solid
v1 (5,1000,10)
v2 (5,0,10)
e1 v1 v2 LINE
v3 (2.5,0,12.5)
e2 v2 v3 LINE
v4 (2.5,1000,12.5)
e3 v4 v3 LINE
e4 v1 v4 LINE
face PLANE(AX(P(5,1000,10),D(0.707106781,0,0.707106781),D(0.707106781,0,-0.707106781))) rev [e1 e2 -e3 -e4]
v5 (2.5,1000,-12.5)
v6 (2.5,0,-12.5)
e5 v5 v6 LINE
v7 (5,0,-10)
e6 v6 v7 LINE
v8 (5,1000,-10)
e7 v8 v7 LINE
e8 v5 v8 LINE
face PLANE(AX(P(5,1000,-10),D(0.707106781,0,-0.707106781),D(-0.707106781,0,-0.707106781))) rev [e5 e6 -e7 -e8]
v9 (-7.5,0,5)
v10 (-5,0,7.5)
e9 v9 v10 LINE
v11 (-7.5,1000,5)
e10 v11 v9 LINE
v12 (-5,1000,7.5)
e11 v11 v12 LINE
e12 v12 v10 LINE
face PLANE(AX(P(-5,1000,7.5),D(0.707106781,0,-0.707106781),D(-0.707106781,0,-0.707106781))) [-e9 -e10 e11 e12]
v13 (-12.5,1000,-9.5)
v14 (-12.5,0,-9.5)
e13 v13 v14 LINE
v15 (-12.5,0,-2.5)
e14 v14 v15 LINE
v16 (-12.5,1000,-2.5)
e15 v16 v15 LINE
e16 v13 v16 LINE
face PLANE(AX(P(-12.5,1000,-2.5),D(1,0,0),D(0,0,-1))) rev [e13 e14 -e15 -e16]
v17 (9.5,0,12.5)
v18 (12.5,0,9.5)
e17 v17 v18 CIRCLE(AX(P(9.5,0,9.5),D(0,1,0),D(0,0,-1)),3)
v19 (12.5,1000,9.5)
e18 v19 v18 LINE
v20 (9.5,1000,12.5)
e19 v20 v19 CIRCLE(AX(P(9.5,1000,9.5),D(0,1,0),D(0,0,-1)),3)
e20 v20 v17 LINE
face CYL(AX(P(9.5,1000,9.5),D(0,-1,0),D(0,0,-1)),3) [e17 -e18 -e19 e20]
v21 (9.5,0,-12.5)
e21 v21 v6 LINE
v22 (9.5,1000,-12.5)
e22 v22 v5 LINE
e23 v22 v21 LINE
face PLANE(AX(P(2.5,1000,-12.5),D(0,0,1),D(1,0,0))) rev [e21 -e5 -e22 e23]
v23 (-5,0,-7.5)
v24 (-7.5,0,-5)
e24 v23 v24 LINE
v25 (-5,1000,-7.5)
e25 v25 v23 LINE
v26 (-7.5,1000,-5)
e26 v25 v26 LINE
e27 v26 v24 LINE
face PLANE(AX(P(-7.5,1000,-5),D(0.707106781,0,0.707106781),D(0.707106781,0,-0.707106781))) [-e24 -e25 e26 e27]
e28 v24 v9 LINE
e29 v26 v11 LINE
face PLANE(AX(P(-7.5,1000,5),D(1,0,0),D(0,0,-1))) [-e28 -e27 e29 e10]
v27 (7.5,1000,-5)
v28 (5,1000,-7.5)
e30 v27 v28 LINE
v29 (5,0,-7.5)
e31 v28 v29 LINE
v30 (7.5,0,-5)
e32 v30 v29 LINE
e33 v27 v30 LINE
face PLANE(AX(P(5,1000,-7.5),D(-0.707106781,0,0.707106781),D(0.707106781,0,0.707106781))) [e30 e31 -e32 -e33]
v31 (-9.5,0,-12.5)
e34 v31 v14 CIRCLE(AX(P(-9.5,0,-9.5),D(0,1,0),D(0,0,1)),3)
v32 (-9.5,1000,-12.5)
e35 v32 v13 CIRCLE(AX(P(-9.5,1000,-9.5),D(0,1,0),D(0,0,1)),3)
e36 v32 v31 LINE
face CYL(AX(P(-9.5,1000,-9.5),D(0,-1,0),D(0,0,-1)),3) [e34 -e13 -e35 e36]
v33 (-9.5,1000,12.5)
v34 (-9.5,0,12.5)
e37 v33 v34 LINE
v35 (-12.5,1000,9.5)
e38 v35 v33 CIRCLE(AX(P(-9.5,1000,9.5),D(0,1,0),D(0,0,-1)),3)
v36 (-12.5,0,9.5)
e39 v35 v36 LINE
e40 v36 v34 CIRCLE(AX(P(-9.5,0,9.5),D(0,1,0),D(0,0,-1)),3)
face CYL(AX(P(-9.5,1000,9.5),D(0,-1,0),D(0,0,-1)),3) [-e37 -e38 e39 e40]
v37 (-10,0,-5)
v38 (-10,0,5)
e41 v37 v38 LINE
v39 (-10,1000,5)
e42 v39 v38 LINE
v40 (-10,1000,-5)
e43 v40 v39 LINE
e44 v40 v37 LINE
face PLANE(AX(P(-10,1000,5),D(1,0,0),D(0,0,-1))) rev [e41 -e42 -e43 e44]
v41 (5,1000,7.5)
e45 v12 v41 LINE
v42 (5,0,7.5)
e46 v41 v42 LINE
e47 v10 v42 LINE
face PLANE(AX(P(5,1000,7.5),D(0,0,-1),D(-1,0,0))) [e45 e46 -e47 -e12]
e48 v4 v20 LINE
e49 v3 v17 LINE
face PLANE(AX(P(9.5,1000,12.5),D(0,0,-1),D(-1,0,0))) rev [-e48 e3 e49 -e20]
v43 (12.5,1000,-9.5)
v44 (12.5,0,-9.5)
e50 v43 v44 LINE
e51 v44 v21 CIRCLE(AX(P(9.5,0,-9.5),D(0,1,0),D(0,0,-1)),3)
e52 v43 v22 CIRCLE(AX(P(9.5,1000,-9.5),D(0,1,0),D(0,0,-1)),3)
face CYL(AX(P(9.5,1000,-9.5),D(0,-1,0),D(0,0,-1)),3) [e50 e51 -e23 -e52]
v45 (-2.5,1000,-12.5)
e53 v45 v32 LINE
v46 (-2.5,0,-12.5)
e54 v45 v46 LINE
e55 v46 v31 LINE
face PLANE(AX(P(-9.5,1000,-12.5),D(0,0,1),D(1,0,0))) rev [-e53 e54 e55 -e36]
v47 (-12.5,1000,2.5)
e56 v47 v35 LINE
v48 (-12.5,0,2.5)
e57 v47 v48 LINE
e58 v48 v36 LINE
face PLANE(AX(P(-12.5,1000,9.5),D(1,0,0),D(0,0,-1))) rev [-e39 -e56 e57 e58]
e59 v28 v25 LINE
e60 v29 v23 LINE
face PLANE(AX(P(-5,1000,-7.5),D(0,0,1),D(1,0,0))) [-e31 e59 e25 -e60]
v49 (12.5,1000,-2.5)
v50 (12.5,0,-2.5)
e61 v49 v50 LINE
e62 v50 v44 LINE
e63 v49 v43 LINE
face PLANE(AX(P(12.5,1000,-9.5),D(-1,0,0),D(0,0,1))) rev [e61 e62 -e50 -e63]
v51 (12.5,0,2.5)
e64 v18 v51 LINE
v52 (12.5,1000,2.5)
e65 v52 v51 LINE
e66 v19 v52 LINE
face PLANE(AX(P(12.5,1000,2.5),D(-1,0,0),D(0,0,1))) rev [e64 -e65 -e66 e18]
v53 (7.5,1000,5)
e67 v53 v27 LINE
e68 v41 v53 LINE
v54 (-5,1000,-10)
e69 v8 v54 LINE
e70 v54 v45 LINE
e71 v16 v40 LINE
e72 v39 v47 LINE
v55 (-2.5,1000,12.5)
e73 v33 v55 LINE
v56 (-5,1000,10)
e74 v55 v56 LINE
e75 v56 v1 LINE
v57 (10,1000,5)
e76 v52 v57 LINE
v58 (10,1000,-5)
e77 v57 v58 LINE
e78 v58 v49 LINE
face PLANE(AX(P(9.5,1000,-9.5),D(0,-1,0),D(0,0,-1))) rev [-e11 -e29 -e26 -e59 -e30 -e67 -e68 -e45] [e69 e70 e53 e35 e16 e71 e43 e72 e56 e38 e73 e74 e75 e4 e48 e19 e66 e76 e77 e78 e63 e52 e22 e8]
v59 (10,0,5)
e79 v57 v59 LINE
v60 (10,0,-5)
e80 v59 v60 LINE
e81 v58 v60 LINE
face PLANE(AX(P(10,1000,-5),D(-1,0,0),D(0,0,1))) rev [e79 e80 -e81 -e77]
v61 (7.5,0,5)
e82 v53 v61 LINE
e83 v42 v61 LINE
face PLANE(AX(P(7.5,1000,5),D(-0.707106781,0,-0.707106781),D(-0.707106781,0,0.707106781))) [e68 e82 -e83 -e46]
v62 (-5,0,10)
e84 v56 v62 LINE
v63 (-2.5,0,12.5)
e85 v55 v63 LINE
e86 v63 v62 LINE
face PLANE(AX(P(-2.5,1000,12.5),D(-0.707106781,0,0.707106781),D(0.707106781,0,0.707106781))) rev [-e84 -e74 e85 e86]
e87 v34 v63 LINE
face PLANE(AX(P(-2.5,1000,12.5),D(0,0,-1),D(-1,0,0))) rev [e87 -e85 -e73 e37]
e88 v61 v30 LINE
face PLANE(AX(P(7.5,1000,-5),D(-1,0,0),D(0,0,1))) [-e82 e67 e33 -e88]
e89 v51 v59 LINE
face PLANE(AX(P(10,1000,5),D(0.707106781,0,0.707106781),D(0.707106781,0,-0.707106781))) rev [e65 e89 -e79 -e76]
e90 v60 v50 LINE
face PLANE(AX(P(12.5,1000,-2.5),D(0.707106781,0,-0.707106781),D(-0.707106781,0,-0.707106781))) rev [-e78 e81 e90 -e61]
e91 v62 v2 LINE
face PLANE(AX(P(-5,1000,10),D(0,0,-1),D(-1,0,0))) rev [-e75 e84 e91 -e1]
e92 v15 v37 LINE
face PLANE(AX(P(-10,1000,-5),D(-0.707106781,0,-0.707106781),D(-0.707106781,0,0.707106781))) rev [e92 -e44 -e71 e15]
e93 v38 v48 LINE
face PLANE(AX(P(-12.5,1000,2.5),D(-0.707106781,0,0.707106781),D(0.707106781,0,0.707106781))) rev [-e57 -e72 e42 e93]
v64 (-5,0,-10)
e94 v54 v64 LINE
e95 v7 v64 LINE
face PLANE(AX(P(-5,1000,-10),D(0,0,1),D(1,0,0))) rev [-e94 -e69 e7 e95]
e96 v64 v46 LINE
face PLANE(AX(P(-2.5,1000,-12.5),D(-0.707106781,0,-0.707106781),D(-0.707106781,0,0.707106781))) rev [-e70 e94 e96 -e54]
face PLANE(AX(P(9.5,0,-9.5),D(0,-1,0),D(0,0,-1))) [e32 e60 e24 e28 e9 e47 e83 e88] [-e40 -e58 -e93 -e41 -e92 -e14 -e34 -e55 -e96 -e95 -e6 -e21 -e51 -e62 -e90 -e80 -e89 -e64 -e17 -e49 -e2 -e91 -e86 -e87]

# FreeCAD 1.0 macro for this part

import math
import FreeCAD as App
import Part
import Sketcher

V = App.Vector
Q = App.Units.Quantity


def add_polygon(sketch, points):
    """Adds a closed chain of lines whose ends are joined by coincident constraints."""
    first, n = sketch.GeometryCount, len(points)
    for a, b in zip(points, points[1:] + points[:1]):
        sketch.addGeometry(Part.LineSegment(App.Vector(*a, 0), App.Vector(*b, 0)), False)
    for i in range(n):
        sketch.addConstraint(Sketcher.Constraint("Coincident", first + i, 2, first + (i + 1) % n, 1))

doc = App.newDocument("Part")
body = doc.addObject("PartDesign::Body", "Body")

# Sketch on XZ plane
sketch1 = body.newObject("Sketcher::SketchObject", "Sketch")
sketch1.AttachmentSupport = (doc.getObject("XZ_Plane"), [""])
sketch1.MapMode = "FlatFace"
sketch1.addGeometry(Part.LineSegment(V(-2.5, -12.5, 0), V(-9.5, -12.5, 0)), False)  # 0
sketch1.addGeometry(Part.ArcOfCircle(Part.Circle(V(-9.5, -9.5, 0), V(0, 0, 1), 3), math.radians(180), math.radians(270)), False)  # 1
sketch1.addGeometry(Part.LineSegment(V(-12.5, -9.5, 0), V(-12.5, -2.5, 0)), False)  # 2
sketch1.addGeometry(Part.LineSegment(V(-12.5, -2.5, 0), V(-10, -5, 0)), False)  # 3
sketch1.addGeometry(Part.LineSegment(V(-10, -5, 0), V(-10, 5, 0)), False)  # 4
sketch1.addGeometry(Part.LineSegment(V(-10, 5, 0), V(-12.5, 2.5, 0)), False)  # 5
sketch1.addGeometry(Part.LineSegment(V(-12.5, 2.5, 0), V(-12.5, 9.5, 0)), False)  # 6
sketch1.addGeometry(Part.ArcOfCircle(Part.Circle(V(-9.5, 9.5, 0), V(0, 0, 1), 3), math.radians(90), math.radians(180)), False)  # 7
sketch1.addGeometry(Part.LineSegment(V(-9.5, 12.5, 0), V(-2.5, 12.5, 0)), False)  # 8
sketch1.addGeometry(Part.LineSegment(V(-2.5, 12.5, 0), V(-5, 10, 0)), False)  # 9
sketch1.addGeometry(Part.LineSegment(V(-5, 10, 0), V(5, 10, 0)), False)  # 10
sketch1.addGeometry(Part.LineSegment(V(5, 10, 0), V(2.5, 12.5, 0)), False)  # 11
sketch1.addGeometry(Part.LineSegment(V(2.5, 12.5, 0), V(9.5, 12.5, 0)), False)  # 12
sketch1.addGeometry(Part.ArcOfCircle(Part.Circle(V(9.5, 9.5, 0), V(0, 0, 1), 3), math.radians(0), math.radians(90)), False)  # 13
sketch1.addGeometry(Part.LineSegment(V(12.5, 9.5, 0), V(12.5, 2.5, 0)), False)  # 14
sketch1.addGeometry(Part.LineSegment(V(12.5, 2.5, 0), V(10, 5, 0)), False)  # 15
sketch1.addGeometry(Part.LineSegment(V(10, 5, 0), V(10, -5, 0)), False)  # 16
sketch1.addGeometry(Part.LineSegment(V(10, -5, 0), V(12.5, -2.5, 0)), False)  # 17
sketch1.addGeometry(Part.LineSegment(V(12.5, -2.5, 0), V(12.5, -9.5, 0)), False)  # 18
sketch1.addGeometry(Part.ArcOfCircle(Part.Circle(V(9.5, -9.5, 0), V(0, 0, 1), 3), math.radians(-90), math.radians(0)), False)  # 19
sketch1.addGeometry(Part.LineSegment(V(9.5, -12.5, 0), V(2.5, -12.5, 0)), False)  # 20
sketch1.addGeometry(Part.LineSegment(V(2.5, -12.5, 0), V(5, -10, 0)), False)  # 21
sketch1.addGeometry(Part.LineSegment(V(5, -10, 0), V(-5, -10, 0)), False)  # 22
sketch1.addGeometry(Part.LineSegment(V(-5, -10, 0), V(-2.5, -12.5, 0)), False)  # 23
add_polygon(sketch1, [(-7.5, -5), (-5, -7.5), (5, -7.5), (7.5, -5), (7.5, 5), (5, 7.5), (-5, 7.5), (-7.5, 5)])  # lines 24-31
sketch1.addConstraint(Sketcher.Constraint("Tangent", 0, 2, 1, 2))
sketch1.addConstraint(Sketcher.Constraint("Tangent", 1, 1, 2, 1))
sketch1.addConstraint(Sketcher.Constraint("Coincident", 2, 2, 3, 1))
sketch1.addConstraint(Sketcher.Constraint("Coincident", 3, 2, 4, 1))
sketch1.addConstraint(Sketcher.Constraint("Coincident", 4, 2, 5, 1))
sketch1.addConstraint(Sketcher.Constraint("Coincident", 5, 2, 6, 1))
sketch1.addConstraint(Sketcher.Constraint("Tangent", 6, 2, 7, 2))
sketch1.addConstraint(Sketcher.Constraint("Tangent", 7, 1, 8, 1))
sketch1.addConstraint(Sketcher.Constraint("Coincident", 8, 2, 9, 1))
sketch1.addConstraint(Sketcher.Constraint("Coincident", 9, 2, 10, 1))
sketch1.addConstraint(Sketcher.Constraint("Coincident", 10, 2, 11, 1))
sketch1.addConstraint(Sketcher.Constraint("Coincident", 11, 2, 12, 1))
sketch1.addConstraint(Sketcher.Constraint("Tangent", 12, 2, 13, 2))
sketch1.addConstraint(Sketcher.Constraint("Tangent", 13, 1, 14, 1))
sketch1.addConstraint(Sketcher.Constraint("Coincident", 14, 2, 15, 1))
sketch1.addConstraint(Sketcher.Constraint("Coincident", 15, 2, 16, 1))
sketch1.addConstraint(Sketcher.Constraint("Coincident", 16, 2, 17, 1))
sketch1.addConstraint(Sketcher.Constraint("Coincident", 17, 2, 18, 1))
sketch1.addConstraint(Sketcher.Constraint("Tangent", 18, 2, 19, 2))
sketch1.addConstraint(Sketcher.Constraint("Tangent", 19, 1, 20, 1))
sketch1.addConstraint(Sketcher.Constraint("Coincident", 20, 2, 21, 1))
sketch1.addConstraint(Sketcher.Constraint("Coincident", 21, 2, 22, 1))
sketch1.addConstraint(Sketcher.Constraint("Coincident", 22, 2, 23, 1))
sketch1.addConstraint(Sketcher.Constraint("Coincident", 23, 2, 0, 1))
sketch1.addConstraint(Sketcher.Constraint("Horizontal", 0))
sketch1.addConstraint(Sketcher.Constraint("Vertical", 2))
sketch1.addConstraint(Sketcher.Constraint("Vertical", 4))
sketch1.addConstraint(Sketcher.Constraint("Vertical", 6))
sketch1.addConstraint(Sketcher.Constraint("Horizontal", 8))
sketch1.addConstraint(Sketcher.Constraint("Horizontal", 10))
sketch1.addConstraint(Sketcher.Constraint("Horizontal", 12))
sketch1.addConstraint(Sketcher.Constraint("Vertical", 14))
sketch1.addConstraint(Sketcher.Constraint("Vertical", 16))
sketch1.addConstraint(Sketcher.Constraint("Vertical", 18))
sketch1.addConstraint(Sketcher.Constraint("Horizontal", 20))
sketch1.addConstraint(Sketcher.Constraint("Horizontal", 22))
sketch1.addConstraint(Sketcher.Constraint("Horizontal", 25))
sketch1.addConstraint(Sketcher.Constraint("Vertical", 27))
sketch1.addConstraint(Sketcher.Constraint("Horizontal", 29))
sketch1.addConstraint(Sketcher.Constraint("Vertical", 31))
sketch1.addConstraint(Sketcher.Constraint("Equal", 1, 7))
sketch1.addConstraint(Sketcher.Constraint("Equal", 7, 13))
sketch1.addConstraint(Sketcher.Constraint("Equal", 13, 19))
sketch1.addConstraint(Sketcher.Constraint("Symmetric", 1, 3, 13, 3, -1, 1))
sketch1.addConstraint(Sketcher.Constraint("Symmetric", 7, 3, 19, 3, -1, 1))
sketch1.addConstraint(Sketcher.Constraint("Symmetric", 3, 2, 15, 2, -1, 1))
sketch1.addConstraint(Sketcher.Constraint("Symmetric", 9, 2, 21, 2, -1, 1))
sketch1.addConstraint(Sketcher.Constraint("Symmetric", 24, 2, 28, 2, -1, 1))
sketch1.addConstraint(Sketcher.Constraint("Symmetric", 26, 2, 30, 2, -1, 1))
sketch1.addConstraint(Sketcher.Constraint("Symmetric", 7, 3, 13, 3, -2))
sketch1.addConstraint(Sketcher.Constraint("Perpendicular", 3, 5))
sketch1.addConstraint(Sketcher.Constraint("Parallel", 5, 9))
sketch1.addConstraint(Sketcher.Constraint("Perpendicular", 9, 11))
sketch1.addConstraint(Sketcher.Constraint("Parallel", 11, 15))
sketch1.addConstraint(Sketcher.Constraint("Perpendicular", 15, 17))
sketch1.addConstraint(Sketcher.Constraint("Parallel", 17, 21))
sketch1.addConstraint(Sketcher.Constraint("Perpendicular", 21, 23))
sketch1.addConstraint(Sketcher.Constraint("Parallel", 23, 24))
sketch1.addConstraint(Sketcher.Constraint("Perpendicular", 24, 26))
sketch1.addConstraint(Sketcher.Constraint("Perpendicular", 26, 28))
sketch1.addConstraint(Sketcher.Constraint("Perpendicular", 28, 30))
sketch1.addConstraint(Sketcher.Constraint("Horizontal", 5, 2, 14, 2))
sketch1.addConstraint(Sketcher.Constraint("Horizontal", 4, 2, 15, 2))
sketch1.addConstraint(Sketcher.Constraint("Horizontal", 3, 2, 16, 2))
sketch1.addConstraint(Sketcher.Constraint("Horizontal", 16, 2, 26, 2))
sketch1.addConstraint(Sketcher.Constraint("Horizontal", 15, 2, 27, 2))
sketch1.addConstraint(Sketcher.Constraint("Vertical", 11, 2, 20, 2))
sketch1.addConstraint(Sketcher.Constraint("Vertical", 9, 2, 22, 2))
sketch1.addConstraint(Sketcher.Constraint("Vertical", 22, 2, 24, 2))
sketch1.addConstraint(Sketcher.Constraint("Equal", 20, 2))
sketch1.addConstraint(Sketcher.Constraint("Equal", 29, 4))
sketch1.addConstraint(Sketcher.Constraint("Equal", 5, 9))
sketch1.addConstraint(Sketcher.Constraint("Equal", 23, 24))
sketch1.addConstraint(Sketcher.Constraint("Radius", 1, Q("3 mm")))
sketch1.addConstraint(Sketcher.Constraint("DistanceX", 0, 2, 0, 1, Q("7 mm")))
sketch1.addConstraint(Sketcher.Constraint("DistanceX", 10, 1, 10, 2, Q("10 mm")))
sketch1.addConstraint(Sketcher.Constraint("DistanceX", 3, 2, -1, 1, Q("10 mm")))
pad1 = body.newObject("PartDesign::Pad", "Pad")
pad1.Profile = sketch1
pad1.Length = 1000
pad1.Reversed = True

doc.recompute()
